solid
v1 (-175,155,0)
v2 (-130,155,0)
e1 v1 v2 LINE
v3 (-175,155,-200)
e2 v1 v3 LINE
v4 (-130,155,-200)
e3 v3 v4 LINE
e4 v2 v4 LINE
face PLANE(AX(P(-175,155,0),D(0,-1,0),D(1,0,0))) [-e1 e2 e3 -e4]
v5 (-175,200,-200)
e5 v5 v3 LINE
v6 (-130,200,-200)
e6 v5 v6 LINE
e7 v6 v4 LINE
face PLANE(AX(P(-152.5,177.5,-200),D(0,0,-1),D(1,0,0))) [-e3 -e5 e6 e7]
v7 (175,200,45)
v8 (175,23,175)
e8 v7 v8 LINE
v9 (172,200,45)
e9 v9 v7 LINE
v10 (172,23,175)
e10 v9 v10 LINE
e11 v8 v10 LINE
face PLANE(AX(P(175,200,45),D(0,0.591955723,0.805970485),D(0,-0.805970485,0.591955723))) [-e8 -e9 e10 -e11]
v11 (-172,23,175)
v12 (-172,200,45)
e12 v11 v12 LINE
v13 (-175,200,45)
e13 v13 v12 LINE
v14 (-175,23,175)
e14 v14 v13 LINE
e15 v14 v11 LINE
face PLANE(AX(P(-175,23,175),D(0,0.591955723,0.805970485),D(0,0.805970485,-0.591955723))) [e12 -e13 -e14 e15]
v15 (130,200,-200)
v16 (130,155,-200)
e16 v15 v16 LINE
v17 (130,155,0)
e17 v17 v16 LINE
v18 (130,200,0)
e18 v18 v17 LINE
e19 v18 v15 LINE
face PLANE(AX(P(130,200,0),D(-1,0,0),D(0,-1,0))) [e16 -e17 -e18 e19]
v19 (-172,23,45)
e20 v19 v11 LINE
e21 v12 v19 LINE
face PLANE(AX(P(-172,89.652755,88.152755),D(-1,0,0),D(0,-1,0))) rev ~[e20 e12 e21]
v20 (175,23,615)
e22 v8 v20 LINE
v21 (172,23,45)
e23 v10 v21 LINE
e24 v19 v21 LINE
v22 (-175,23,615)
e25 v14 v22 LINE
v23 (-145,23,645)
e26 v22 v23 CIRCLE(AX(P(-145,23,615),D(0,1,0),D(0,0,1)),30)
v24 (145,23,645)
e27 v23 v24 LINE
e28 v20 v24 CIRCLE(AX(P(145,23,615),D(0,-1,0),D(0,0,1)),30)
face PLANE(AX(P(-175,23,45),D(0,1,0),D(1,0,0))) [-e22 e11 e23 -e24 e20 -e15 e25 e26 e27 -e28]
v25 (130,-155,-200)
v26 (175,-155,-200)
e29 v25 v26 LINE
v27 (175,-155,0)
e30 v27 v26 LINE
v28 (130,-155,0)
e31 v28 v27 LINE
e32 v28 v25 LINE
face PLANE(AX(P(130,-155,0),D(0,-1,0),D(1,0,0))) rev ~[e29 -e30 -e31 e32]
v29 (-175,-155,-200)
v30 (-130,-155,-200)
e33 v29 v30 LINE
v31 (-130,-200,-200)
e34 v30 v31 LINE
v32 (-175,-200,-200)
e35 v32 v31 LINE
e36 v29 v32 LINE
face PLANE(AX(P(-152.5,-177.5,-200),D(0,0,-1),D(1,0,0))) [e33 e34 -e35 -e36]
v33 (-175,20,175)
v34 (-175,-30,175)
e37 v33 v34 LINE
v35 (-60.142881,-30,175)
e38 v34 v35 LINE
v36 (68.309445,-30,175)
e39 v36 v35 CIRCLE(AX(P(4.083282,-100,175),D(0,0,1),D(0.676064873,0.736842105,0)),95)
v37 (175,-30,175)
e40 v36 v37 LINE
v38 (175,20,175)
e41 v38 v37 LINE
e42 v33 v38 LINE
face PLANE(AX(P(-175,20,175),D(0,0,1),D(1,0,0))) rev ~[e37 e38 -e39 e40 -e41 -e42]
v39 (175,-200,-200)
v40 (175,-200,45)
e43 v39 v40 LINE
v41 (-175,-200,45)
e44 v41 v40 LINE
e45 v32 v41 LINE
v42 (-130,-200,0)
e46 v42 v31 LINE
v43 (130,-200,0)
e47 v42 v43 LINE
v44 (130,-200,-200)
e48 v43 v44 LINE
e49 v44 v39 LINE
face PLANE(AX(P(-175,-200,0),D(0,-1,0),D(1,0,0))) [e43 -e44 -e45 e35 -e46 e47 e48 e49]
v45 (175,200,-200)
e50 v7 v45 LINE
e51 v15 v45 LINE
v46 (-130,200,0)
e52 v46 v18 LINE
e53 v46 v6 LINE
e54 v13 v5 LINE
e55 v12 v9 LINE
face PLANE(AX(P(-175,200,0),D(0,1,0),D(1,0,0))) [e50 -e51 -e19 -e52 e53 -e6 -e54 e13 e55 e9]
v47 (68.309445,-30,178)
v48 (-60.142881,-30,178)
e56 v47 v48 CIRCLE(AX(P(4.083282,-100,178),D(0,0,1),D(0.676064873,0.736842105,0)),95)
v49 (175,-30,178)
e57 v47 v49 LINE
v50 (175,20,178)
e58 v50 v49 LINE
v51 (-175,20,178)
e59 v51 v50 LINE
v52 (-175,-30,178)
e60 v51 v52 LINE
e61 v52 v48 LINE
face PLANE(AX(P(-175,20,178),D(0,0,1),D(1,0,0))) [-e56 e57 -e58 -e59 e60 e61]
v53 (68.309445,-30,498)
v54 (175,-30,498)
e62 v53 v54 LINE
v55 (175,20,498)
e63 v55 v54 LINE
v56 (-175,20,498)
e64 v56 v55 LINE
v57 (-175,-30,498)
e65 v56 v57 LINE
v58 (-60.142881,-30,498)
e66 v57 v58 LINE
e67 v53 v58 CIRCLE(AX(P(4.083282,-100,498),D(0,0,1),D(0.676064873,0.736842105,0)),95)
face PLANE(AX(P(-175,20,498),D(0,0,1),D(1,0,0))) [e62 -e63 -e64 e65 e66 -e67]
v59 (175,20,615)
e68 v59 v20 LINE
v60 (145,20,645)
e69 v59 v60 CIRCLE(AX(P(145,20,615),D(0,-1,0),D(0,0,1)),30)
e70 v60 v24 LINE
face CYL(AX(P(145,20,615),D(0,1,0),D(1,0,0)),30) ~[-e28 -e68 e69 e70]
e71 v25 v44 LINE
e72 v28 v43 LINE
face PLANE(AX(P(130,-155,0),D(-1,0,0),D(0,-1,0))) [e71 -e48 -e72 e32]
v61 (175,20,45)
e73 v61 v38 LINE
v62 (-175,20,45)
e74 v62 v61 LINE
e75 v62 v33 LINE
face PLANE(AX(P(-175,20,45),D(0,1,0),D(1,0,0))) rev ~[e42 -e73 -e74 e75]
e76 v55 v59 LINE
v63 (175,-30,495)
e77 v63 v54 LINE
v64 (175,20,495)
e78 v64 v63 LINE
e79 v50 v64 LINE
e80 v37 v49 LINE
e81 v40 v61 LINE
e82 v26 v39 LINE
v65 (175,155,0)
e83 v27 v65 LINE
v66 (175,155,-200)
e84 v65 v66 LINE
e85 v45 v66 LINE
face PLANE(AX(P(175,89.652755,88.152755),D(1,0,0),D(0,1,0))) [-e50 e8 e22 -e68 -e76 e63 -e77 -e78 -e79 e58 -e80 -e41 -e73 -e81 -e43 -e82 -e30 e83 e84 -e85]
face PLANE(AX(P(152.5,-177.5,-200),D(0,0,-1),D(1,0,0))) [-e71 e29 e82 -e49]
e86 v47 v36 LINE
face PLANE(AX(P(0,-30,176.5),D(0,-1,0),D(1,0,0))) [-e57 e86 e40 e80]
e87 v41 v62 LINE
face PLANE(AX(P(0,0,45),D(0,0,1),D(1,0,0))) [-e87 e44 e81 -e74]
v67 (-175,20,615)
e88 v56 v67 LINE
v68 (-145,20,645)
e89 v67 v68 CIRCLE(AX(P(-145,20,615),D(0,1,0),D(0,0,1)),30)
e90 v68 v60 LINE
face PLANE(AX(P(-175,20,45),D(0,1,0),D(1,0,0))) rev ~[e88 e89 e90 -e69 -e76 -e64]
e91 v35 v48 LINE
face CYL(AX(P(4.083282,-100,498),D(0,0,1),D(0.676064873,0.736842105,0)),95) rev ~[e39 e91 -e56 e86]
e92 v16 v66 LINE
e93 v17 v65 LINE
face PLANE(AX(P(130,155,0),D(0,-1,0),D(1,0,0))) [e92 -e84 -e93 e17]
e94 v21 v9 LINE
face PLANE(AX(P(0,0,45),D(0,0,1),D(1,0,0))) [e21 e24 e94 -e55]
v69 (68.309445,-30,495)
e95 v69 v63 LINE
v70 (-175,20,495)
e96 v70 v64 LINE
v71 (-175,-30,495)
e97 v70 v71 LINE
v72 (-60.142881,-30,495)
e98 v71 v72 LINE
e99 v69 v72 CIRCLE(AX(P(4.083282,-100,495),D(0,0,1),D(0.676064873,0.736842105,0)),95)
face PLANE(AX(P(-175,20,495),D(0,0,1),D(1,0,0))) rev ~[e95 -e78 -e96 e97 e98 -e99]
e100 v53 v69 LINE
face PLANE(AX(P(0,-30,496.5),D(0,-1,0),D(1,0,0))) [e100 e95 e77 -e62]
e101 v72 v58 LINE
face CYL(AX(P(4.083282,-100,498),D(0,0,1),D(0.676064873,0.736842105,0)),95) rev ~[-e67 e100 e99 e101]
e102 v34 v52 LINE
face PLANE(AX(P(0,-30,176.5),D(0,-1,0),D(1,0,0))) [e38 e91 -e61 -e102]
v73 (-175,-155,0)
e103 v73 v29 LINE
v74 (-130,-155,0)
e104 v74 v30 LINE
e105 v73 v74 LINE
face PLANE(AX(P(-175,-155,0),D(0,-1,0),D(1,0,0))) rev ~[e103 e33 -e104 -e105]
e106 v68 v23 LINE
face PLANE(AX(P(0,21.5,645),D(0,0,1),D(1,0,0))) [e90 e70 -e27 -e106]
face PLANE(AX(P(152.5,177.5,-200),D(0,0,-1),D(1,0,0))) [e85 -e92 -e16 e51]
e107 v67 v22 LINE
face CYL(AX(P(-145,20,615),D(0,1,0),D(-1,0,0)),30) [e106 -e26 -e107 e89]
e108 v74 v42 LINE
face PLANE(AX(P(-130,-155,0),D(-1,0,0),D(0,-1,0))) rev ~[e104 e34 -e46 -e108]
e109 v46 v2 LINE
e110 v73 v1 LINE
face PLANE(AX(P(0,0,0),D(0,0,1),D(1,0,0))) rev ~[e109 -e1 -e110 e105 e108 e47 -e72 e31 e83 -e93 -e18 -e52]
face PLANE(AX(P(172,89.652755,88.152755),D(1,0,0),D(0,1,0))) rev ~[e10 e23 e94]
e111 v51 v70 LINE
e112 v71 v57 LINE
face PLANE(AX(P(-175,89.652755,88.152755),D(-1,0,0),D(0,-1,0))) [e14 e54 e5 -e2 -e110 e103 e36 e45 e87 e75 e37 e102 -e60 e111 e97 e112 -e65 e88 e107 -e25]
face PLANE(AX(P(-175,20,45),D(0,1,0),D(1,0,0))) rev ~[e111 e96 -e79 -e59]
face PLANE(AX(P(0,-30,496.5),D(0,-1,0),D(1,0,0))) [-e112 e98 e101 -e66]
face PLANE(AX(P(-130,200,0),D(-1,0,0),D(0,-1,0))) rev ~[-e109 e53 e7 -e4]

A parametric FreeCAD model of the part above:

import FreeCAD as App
import Part
import Sketcher

V = App.Vector


def edges_at(feature, points):
    """Names of the edges that pass closest to the given points."""
    edges = feature.Shape.Edges
    near = lambda p: min(range(len(edges)), key=lambda i: edges[i].distToShape(Part.Vertex(*p))[0])
    return sorted({f"Edge{near(p) + 1}" for p in points})


def add_polygon(sketch, points):
    """Adds a closed chain of lines whose ends are joined by coincident constraints."""
    first, n = sketch.GeometryCount, len(points)
    for a, b in zip(points, points[1:] + points[:1]):
        sketch.addGeometry(Part.LineSegment(App.Vector(*a, 0), App.Vector(*b, 0)), False)
    for i in range(n):
        sketch.addConstraint(Sketcher.Constraint("Coincident", first + i, 2, first + (i + 1) % n, 1))

doc = App.newDocument("Part")
body = doc.addObject("PartDesign::Body", "Body")

sketch1 = doc.addObject("Sketcher::SketchObject", "Sketch")
body.addObject(sketch1)
sketch1.AttachmentSupport = (doc.XY_Plane, [""])
sketch1.MapMode = "FlatFace"
add_polygon(sketch1, [(-175, 200), (-175, -200), (175, -200), (175, 200)])
sketch1.addConstraint([
    Sketcher.Constraint("Vertical", 0),
    Sketcher.Constraint("Horizontal", 1),
    Sketcher.Constraint("Vertical", 2),
    Sketcher.Constraint("Horizontal", 3),
    Sketcher.Constraint("Symmetric", 0, 2, 2, 2, -1, 1),
    Sketcher.Constraint("DistanceX", 1, 1, 1, 2, 350.0),
    Sketcher.Constraint("DistanceY", 0, 2, 0, 1, 400.0),
])
pad1 = doc.addObject("PartDesign::Pad", "Pad")
body.addObject(pad1)
pad1.Profile = sketch1
pad1.Length = 45

sketch2 = doc.addObject("Sketcher::SketchObject", "Sketch001")
body.addObject(sketch2)
sketch2.AttachmentSupport = (doc.XY_Plane, [""])
sketch2.MapMode = "FlatFace"
add_polygon(sketch2, [(-175, -200), (-175, -155), (-130, -155), (-130, -200)])
add_polygon(sketch2, [(130, -200), (130, -155), (175, -155), (175, -200)])
add_polygon(sketch2, [(-175, 155), (-175, 200), (-130, 200), (-130, 155)])
add_polygon(sketch2, [(130, 155), (130, 200), (175, 200), (175, 155)])
sketch2.addConstraint([
    Sketcher.Constraint("Vertical", 0),
    Sketcher.Constraint("Horizontal", 1),
    Sketcher.Constraint("Vertical", 2),
    Sketcher.Constraint("Horizontal", 3),
    Sketcher.Constraint("Vertical", 4),
    Sketcher.Constraint("Horizontal", 5),
    Sketcher.Constraint("Vertical", 6),
    Sketcher.Constraint("Horizontal", 7),
    Sketcher.Constraint("Vertical", 8),
    Sketcher.Constraint("Horizontal", 9),
    Sketcher.Constraint("Vertical", 10),
    Sketcher.Constraint("Horizontal", 11),
    Sketcher.Constraint("Vertical", 12),
    Sketcher.Constraint("Horizontal", 13),
    Sketcher.Constraint("Vertical", 14),
    Sketcher.Constraint("Horizontal", 15),
    Sketcher.Constraint("Symmetric", 6, 2, 8, 2, -1, 1),
    Sketcher.Constraint("Symmetric", 4, 2, 10, 2, -1, 1),
    Sketcher.Constraint("Symmetric", 2, 2, 12, 2, -1, 1),
    Sketcher.Constraint("Symmetric", 0, 2, 14, 2, -1, 1),
    Sketcher.Constraint("Symmetric", 1, 2, 4, 2, -2),
    Sketcher.Constraint("Symmetric", 3, 2, 6, 2, -2),
    Sketcher.Constraint("Equal", 15, 0),
    Sketcher.Constraint("DistanceX", 1, 1, 1, 2, 45.0),
    Sketcher.Constraint("DistanceX", 0, 2, -1, 1, 175.0),
    Sketcher.Constraint("DistanceY", 0, 2, -1, 1, 155.0),
])
pad2 = doc.addObject("PartDesign::Pad", "Pad001")
body.addObject(pad2)
pad2.Profile = sketch2
pad2.Length = 200
pad2.Reversed = True

sketch3 = doc.addObject("Sketcher::SketchObject", "Sketch002")
body.addObject(sketch3)
sketch3.AttachmentSupport = (doc.XY_Plane, [""])
sketch3.MapMode = "FlatFace"
sketch3.AttachmentOffset = App.Placement(V(0, 0, 45), App.Rotation())
add_polygon(sketch3, [(-175, 23), (-175, 20), (175, 20), (175, 23)])
sketch3.addConstraint([
    Sketcher.Constraint("Vertical", 0),
    Sketcher.Constraint("Horizontal", 1),
    Sketcher.Constraint("Vertical", 2),
    Sketcher.Constraint("Horizontal", 3),
    Sketcher.Constraint("DistanceX", 1, 1, 1, 2, 350.0),
    Sketcher.Constraint("DistanceY", 0, 2, 0, 1, 3.0),
    Sketcher.Constraint("DistanceX", 0, 2, -1, 1, 175.0),
    Sketcher.Constraint("DistanceY", -1, 1, 0, 2, 20.0),
])
pad3 = doc.addObject("PartDesign::Pad", "Pad002")
body.addObject(pad3)
pad3.Profile = sketch3
pad3.Length = 600
doc.recompute()

fillet = doc.addObject("PartDesign::Fillet", "Fillet")
body.addObject(fillet)
fillet.Base = (pad3, edges_at(pad3, [(-175, 21.5, 645), (175, 21.5, 645)]))
fillet.Radius = 30

sketch4 = doc.addObject("Sketcher::SketchObject", "Sketch003")
body.addObject(sketch4)
sketch4.AttachmentSupport = (doc.YZ_Plane, [""])
sketch4.MapMode = "FlatFace"
sketch4.AttachmentOffset = App.Placement(V(0, 0, 175), App.Rotation())
add_polygon(sketch4, [(23, 45), (200, 45), (23, 175)])
sketch4.addConstraint([
    Sketcher.Constraint("Horizontal", 0),
    Sketcher.Constraint("Vertical", 2),
    Sketcher.Constraint("DistanceX", 0, 1, 0, 2, 177.0),
    Sketcher.Constraint("DistanceY", 2, 2, 2, 1, 130.0),
    Sketcher.Constraint("DistanceX", -1, 1, 0, 2, 200.0),
    Sketcher.Constraint("DistanceY", -1, 1, 0, 2, 45.0),
])
pad4 = doc.addObject("PartDesign::Pad", "Pad003")
body.addObject(pad4)
pad4.Profile = sketch4
pad4.Length = 3
pad4.Reversed = True

sketch5 = doc.addObject("Sketcher::SketchObject", "Sketch004")
body.addObject(sketch5)
sketch5.AttachmentSupport = (doc.YZ_Plane, [""])
sketch5.MapMode = "FlatFace"
sketch5.AttachmentOffset = App.Placement(V(0, 0, -175), App.Rotation())
add_polygon(sketch5, [(23, 175), (200, 45), (23, 45)])
sketch5.addConstraint([
    Sketcher.Constraint("Horizontal", 1),
    Sketcher.Constraint("Vertical", 2),
    Sketcher.Constraint("DistanceX", 1, 2, 1, 1, 177.0),
    Sketcher.Constraint("DistanceY", 2, 1, 2, 2, 130.0),
    Sketcher.Constraint("DistanceX", -1, 1, 0, 2, 200.0),
    Sketcher.Constraint("DistanceY", -1, 1, 0, 2, 45.0),
])
pad5 = doc.addObject("PartDesign::Pad", "Pad004")
body.addObject(pad5)
pad5.Profile = sketch5
pad5.Length = 3

sketch6 = doc.addObject("Sketcher::SketchObject", "Sketch005")
body.addObject(sketch6)
sketch6.AttachmentSupport = (doc.XZ_Plane, [""])
sketch6.MapMode = "FlatFace"
sketch6.AttachmentOffset = App.Placement(V(0, 0, -20), App.Rotation())
add_polygon(sketch6, [(-175, 178), (-175, 175), (175, 175), (175, 178)])
add_polygon(sketch6, [(-175, 498), (-175, 495), (175, 495), (175, 498)])
sketch6.addConstraint([
    Sketcher.Constraint("Vertical", 0),
    Sketcher.Constraint("Horizontal", 1),
    Sketcher.Constraint("Vertical", 2),
    Sketcher.Constraint("Horizontal", 3),
    Sketcher.Constraint("Vertical", 4),
    Sketcher.Constraint("Horizontal", 5),
    Sketcher.Constraint("Vertical", 6),
    Sketcher.Constraint("Horizontal", 7),
    Sketcher.Constraint("Vertical", 3, 2, 4, 2),
    Sketcher.Constraint("Vertical", 2, 2, 5, 2),
    Sketcher.Constraint("Equal", 2, 4),
    Sketcher.Constraint("DistanceX", 1, 1, 1, 2, 350.0),
    Sketcher.Constraint("DistanceY", 0, 2, 0, 1, 3.0),
    Sketcher.Constraint("DistanceX", 0, 2, -1, 1, 175.0),
    Sketcher.Constraint("DistanceY", -1, 1, 0, 2, 175.0),
    Sketcher.Constraint("DistanceY", -1, 1, 4, 2, 495.0),
])
pad6 = doc.addObject("PartDesign::Pad", "Pad005")
body.addObject(pad6)
pad6.Profile = sketch6
pad6.Length = 50

sketch7 = doc.addObject("Sketcher::SketchObject", "Sketch006")
body.addObject(sketch7)
sketch7.AttachmentSupport = (doc.XY_Plane, [""])
sketch7.MapMode = "FlatFace"
sketch7.AttachmentOffset = App.Placement(V(0, 0, 498), App.Rotation())
sketch7.addGeometry(Part.Circle(V(4, -100, 0), V(0, 0, 1), 95), False)
sketch7.addConstraint([
    Sketcher.Constraint("Diameter", 0, 190.0),
    Sketcher.Constraint("DistanceY", 0, 3, -1, 1, 100.0),
    Sketcher.Constraint("DistanceX", -1, 1, 0, 3, 4.083282),
])
pocket1 = doc.addObject("PartDesign::Pocket", "Pocket")
body.addObject(pocket1)
pocket1.Profile = sketch7
pocket1.Length = 350

doc.recompute()
